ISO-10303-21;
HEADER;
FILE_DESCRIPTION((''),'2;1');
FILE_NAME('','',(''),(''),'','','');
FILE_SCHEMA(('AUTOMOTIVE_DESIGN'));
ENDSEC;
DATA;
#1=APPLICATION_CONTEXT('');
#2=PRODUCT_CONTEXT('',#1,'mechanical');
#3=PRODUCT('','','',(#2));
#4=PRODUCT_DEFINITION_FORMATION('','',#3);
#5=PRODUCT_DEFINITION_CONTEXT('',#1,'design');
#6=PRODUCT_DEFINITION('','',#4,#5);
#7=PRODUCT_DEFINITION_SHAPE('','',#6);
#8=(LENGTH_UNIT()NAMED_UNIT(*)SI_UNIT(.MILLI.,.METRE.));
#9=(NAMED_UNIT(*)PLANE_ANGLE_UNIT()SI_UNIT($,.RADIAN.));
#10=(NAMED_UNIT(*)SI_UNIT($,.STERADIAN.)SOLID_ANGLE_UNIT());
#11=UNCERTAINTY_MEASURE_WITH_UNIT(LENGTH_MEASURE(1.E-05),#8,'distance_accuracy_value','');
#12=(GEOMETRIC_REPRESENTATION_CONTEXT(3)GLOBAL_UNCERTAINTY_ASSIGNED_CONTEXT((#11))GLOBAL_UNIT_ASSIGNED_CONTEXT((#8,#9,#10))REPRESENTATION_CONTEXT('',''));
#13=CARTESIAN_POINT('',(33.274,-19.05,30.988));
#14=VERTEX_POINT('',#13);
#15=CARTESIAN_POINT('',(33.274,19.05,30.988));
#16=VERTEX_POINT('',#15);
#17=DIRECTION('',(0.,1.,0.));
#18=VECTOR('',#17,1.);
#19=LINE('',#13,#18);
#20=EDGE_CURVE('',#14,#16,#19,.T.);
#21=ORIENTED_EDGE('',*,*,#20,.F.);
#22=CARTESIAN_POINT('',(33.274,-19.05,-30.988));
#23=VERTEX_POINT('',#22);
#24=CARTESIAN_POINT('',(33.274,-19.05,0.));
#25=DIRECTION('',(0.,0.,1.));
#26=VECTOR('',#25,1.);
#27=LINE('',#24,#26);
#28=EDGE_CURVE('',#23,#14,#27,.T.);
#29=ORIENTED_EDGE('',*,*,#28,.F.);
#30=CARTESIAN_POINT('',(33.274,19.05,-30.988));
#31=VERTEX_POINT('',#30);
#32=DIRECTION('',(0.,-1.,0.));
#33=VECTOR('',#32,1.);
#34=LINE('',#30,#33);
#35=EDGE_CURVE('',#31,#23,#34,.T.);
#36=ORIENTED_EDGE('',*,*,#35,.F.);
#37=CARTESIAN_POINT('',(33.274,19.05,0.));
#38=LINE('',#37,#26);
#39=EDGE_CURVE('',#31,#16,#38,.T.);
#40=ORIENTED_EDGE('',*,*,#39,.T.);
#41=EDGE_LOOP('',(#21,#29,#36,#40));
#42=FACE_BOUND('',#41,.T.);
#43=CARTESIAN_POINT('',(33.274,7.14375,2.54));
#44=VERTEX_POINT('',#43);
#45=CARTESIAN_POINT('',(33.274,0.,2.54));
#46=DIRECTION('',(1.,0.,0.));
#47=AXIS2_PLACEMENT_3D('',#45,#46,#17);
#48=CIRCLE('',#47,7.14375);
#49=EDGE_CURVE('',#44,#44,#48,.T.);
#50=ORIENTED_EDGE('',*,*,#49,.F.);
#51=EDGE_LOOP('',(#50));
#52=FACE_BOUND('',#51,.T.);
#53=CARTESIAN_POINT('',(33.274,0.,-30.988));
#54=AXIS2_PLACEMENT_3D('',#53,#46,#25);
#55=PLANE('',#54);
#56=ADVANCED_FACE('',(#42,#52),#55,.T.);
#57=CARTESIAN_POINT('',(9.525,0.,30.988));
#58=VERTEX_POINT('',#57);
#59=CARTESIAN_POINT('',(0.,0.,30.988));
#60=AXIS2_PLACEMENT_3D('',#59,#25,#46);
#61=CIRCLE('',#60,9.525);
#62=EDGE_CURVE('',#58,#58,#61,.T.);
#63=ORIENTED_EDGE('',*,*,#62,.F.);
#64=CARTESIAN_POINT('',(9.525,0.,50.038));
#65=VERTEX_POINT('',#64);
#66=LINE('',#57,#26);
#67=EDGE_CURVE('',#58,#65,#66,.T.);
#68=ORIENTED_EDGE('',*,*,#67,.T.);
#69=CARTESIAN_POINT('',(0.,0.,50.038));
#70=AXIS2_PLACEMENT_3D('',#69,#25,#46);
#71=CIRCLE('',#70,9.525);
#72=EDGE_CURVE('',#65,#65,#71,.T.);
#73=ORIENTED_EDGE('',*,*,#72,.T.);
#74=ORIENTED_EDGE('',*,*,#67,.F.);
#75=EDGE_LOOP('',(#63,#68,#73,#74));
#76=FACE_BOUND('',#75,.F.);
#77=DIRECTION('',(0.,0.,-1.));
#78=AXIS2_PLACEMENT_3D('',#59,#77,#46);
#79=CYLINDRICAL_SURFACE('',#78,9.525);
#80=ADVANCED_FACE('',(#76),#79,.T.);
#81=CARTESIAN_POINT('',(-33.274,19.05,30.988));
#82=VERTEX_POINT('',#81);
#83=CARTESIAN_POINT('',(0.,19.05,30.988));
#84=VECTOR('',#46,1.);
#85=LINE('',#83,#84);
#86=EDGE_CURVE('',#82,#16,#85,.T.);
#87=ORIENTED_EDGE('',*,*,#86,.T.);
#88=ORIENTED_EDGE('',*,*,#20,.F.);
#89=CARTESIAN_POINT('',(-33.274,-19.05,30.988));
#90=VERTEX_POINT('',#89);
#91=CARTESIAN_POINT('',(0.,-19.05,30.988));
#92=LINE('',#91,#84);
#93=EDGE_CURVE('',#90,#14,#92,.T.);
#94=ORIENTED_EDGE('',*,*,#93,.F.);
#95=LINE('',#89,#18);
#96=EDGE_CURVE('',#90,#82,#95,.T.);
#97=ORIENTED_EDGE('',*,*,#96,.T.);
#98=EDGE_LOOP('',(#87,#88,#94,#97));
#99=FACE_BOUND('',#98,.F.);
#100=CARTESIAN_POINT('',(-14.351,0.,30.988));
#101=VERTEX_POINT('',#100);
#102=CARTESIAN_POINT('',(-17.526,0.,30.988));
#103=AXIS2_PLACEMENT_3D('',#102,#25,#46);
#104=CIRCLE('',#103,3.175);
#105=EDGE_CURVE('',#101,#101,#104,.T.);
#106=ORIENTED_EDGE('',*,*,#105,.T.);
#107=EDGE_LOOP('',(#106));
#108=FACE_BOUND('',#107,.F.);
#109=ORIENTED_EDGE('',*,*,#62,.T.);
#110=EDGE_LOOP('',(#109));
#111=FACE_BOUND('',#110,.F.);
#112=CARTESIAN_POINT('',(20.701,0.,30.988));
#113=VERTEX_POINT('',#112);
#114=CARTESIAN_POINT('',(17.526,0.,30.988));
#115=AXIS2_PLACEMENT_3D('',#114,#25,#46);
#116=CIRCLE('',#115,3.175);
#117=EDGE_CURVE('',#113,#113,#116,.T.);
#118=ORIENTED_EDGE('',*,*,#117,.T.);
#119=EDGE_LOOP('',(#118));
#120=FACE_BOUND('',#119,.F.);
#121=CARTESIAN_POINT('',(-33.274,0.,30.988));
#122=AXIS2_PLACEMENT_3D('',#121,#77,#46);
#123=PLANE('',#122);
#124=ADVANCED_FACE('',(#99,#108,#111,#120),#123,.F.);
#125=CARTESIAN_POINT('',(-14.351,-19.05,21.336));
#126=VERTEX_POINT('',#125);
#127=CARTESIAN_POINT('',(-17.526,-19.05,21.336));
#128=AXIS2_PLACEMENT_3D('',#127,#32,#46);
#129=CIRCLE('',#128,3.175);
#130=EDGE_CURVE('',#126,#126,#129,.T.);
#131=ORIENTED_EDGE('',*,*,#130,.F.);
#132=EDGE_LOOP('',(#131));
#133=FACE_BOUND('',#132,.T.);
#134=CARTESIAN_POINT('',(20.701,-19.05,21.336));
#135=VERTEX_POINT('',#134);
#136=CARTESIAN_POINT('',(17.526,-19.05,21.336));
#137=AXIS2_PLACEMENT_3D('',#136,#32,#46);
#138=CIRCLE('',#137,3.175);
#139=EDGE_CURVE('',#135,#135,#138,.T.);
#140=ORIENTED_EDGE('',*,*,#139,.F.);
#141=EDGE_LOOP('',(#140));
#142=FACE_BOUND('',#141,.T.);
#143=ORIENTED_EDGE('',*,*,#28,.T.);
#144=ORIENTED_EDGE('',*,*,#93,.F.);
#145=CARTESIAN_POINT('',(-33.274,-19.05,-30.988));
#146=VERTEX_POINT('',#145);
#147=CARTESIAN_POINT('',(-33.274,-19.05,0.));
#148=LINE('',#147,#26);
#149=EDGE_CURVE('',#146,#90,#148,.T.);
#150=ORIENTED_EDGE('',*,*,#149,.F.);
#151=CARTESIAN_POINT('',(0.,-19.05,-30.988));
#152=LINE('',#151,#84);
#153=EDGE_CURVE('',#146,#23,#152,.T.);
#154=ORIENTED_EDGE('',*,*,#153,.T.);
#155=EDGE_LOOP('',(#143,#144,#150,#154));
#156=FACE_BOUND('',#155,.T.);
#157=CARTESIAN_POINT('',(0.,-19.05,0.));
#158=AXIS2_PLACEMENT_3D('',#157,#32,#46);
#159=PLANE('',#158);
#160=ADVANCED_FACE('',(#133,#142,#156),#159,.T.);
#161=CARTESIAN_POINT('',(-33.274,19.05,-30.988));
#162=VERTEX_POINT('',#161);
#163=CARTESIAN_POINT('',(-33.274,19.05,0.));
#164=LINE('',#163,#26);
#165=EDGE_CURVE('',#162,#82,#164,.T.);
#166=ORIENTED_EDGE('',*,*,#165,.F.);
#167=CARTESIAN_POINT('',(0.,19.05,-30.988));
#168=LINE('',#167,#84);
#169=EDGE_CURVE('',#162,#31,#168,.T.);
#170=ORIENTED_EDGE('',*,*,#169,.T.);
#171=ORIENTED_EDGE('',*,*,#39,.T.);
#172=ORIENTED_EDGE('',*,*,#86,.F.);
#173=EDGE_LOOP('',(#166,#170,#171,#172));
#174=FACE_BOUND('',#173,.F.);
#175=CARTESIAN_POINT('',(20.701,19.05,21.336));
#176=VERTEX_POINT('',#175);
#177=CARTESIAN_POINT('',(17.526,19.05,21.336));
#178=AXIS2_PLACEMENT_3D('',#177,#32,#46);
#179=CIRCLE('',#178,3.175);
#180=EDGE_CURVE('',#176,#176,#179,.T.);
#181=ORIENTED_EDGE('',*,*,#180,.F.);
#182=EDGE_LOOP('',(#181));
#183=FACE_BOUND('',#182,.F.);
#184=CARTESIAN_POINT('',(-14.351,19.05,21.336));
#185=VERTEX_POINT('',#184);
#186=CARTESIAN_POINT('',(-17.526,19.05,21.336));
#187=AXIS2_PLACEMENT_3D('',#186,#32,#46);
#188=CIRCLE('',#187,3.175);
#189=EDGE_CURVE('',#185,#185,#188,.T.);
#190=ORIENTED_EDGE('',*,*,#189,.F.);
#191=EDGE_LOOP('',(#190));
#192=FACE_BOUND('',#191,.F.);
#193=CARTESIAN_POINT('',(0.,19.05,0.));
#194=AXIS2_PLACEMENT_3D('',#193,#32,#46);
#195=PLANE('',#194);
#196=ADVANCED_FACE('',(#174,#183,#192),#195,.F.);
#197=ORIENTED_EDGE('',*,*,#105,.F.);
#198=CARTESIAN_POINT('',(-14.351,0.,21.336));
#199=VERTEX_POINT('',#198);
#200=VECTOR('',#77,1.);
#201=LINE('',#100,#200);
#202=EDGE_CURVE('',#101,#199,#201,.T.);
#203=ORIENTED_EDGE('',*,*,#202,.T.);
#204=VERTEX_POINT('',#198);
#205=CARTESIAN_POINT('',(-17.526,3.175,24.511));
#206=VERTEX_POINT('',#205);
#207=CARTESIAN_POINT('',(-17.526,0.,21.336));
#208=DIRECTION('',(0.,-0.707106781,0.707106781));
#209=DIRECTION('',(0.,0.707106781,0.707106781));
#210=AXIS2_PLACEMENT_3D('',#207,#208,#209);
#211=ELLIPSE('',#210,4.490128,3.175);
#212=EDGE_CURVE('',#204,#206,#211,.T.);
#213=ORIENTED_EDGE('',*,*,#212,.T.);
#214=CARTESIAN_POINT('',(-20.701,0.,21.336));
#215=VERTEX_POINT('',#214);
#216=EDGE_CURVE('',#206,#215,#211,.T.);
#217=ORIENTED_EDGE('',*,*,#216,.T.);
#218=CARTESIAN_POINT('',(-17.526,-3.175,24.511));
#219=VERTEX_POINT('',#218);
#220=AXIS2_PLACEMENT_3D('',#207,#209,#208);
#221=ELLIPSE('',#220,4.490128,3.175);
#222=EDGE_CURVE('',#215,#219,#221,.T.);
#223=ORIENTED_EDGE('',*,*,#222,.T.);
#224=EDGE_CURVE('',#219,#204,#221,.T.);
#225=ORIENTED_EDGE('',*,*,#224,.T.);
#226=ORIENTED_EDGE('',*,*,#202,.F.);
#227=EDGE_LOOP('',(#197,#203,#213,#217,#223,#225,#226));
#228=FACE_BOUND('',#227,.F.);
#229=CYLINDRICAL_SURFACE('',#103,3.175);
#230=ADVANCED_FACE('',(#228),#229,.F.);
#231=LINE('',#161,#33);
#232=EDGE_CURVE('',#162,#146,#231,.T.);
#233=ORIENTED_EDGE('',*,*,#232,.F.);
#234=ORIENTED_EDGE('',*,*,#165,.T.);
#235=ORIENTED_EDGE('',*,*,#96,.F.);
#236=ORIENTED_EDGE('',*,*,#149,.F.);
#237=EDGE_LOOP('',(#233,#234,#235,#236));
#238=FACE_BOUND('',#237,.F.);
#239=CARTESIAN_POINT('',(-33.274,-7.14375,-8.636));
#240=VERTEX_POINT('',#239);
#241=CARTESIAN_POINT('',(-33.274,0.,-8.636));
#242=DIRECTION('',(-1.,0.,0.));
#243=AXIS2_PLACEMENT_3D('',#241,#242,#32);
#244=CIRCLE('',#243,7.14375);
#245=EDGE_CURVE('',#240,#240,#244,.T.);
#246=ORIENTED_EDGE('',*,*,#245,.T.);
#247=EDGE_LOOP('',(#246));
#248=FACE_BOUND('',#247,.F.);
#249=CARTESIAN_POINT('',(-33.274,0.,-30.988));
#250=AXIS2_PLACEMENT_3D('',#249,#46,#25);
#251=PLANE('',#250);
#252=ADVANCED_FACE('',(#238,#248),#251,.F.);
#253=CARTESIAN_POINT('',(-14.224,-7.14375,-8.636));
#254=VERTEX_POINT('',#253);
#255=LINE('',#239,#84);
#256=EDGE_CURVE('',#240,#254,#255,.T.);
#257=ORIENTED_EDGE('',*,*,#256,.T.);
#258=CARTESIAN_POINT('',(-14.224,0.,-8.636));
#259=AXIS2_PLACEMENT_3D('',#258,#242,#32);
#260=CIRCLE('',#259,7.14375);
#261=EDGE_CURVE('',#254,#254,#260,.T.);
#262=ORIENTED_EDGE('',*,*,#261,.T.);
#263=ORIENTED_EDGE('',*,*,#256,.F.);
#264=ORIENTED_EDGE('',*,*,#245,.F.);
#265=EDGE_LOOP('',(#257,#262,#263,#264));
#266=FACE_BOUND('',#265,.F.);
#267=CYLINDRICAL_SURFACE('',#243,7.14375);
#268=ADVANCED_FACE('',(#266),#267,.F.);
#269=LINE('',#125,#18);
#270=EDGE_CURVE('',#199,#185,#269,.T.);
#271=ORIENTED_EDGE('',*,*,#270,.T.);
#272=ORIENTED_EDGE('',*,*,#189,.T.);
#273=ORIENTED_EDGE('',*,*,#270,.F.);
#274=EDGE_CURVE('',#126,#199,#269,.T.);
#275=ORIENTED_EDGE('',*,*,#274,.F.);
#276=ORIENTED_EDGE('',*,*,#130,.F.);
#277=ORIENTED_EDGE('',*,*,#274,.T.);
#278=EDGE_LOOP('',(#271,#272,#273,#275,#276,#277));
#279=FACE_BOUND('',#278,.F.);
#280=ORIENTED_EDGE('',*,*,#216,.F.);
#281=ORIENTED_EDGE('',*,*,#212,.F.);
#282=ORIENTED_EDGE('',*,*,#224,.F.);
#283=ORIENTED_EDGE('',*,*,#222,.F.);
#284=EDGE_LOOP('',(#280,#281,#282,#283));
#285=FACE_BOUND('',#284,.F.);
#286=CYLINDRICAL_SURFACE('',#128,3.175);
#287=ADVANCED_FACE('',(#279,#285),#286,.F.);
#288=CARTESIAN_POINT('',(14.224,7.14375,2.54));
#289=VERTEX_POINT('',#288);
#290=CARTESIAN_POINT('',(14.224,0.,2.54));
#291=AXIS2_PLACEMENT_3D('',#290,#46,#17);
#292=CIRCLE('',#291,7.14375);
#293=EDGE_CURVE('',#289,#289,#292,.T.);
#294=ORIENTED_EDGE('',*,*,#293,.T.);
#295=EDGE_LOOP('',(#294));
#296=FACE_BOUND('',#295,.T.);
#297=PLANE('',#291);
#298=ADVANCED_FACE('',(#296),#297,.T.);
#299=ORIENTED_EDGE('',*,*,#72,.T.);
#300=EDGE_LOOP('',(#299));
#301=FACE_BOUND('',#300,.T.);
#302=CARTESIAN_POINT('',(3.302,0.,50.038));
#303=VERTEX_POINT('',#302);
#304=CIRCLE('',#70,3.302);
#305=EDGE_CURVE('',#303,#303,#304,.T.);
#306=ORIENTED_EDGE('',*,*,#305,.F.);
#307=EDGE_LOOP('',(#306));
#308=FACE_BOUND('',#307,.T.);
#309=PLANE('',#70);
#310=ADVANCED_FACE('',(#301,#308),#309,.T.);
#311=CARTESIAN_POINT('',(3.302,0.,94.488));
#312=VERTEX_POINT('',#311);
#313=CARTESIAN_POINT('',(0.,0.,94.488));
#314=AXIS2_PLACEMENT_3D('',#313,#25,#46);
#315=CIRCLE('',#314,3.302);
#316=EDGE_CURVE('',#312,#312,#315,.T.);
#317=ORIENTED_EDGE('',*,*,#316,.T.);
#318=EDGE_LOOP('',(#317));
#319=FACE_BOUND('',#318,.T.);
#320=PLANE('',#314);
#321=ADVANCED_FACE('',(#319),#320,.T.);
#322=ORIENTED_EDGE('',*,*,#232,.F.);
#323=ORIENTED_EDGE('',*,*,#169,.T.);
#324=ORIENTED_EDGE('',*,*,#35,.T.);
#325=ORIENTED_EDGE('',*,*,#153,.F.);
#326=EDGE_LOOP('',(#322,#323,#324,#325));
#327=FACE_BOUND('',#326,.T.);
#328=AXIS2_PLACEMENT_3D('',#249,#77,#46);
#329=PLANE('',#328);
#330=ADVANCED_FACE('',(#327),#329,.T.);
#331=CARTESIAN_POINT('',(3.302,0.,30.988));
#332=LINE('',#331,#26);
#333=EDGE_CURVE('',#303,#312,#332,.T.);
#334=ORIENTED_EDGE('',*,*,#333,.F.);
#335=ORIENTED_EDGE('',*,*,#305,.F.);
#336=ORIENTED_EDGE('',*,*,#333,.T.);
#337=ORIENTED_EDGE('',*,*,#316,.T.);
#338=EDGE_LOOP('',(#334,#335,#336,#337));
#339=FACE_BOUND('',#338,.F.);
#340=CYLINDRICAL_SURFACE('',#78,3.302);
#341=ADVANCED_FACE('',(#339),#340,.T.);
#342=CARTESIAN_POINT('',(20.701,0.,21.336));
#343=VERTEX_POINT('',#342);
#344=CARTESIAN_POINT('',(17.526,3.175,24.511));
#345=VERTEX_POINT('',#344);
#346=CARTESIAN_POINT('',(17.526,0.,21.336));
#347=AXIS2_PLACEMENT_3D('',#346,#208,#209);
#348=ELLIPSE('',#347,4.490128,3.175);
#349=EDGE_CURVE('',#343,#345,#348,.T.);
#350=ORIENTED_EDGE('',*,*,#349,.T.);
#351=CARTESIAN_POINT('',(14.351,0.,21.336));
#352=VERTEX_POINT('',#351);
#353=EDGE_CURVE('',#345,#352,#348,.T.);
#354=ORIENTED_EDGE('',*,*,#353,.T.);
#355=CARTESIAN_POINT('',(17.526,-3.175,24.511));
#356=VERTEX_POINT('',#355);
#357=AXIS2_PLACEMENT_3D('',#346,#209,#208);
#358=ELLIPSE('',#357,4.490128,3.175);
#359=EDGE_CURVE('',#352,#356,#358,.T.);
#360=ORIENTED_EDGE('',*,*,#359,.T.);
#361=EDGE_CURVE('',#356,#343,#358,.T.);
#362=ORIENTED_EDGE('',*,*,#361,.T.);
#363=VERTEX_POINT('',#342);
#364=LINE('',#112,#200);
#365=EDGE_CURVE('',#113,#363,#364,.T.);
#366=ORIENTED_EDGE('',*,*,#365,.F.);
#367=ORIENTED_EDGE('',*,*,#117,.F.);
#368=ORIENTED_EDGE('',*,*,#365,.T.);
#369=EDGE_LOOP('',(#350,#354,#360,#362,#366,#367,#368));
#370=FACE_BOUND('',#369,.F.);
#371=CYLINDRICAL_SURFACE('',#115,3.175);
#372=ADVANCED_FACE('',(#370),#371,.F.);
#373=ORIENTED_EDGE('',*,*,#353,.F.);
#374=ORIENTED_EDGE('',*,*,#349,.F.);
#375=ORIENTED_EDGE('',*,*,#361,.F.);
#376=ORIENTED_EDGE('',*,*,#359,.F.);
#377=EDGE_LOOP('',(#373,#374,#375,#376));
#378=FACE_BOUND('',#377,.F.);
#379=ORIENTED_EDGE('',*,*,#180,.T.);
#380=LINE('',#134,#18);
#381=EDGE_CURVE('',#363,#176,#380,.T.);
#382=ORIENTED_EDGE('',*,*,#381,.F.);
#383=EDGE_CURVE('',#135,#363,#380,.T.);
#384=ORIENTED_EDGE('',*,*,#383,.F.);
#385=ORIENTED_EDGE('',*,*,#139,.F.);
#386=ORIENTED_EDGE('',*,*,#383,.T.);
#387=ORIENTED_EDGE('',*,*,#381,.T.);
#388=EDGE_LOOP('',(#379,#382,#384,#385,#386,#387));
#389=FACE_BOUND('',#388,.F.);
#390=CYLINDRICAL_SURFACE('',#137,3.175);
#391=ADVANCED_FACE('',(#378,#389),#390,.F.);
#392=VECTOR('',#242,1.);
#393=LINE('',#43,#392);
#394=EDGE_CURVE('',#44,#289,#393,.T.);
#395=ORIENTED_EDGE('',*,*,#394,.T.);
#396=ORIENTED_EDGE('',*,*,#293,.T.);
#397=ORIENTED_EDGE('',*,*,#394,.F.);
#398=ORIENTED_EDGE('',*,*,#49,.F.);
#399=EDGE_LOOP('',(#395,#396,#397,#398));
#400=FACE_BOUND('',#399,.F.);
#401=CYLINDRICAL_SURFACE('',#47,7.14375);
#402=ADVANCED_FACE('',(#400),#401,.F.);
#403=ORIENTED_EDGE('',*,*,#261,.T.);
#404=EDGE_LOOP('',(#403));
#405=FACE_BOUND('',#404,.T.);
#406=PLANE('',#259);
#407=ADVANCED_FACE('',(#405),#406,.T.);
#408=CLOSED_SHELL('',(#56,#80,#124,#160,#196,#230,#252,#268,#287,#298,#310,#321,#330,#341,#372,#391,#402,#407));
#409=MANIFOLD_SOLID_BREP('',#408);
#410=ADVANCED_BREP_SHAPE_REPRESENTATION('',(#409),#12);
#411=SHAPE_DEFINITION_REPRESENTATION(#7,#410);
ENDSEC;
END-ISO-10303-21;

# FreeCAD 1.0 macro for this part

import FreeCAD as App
import Part
import Sketcher
Q = App.Units.Quantity

doc = App.newDocument("Part")
body = doc.addObject("PartDesign::Body", "Body")

# Sketch on XZ plane
sketch1 = body.newObject("Sketcher::SketchObject", "Sketch")
sketch1.AttachmentSupport = (doc.getObject("XZ_Plane"), [""])
sketch1.MapMode = "FlatFace"
sketch1.addGeometry(Part.LineSegment(App.Vector(-33, 31, 0), App.Vector(-33, -31, 0)), False)
sketch1.addGeometry(Part.LineSegment(App.Vector(-33, -31, 0), App.Vector(33, -31, 0)), False)
sketch1.addGeometry(Part.LineSegment(App.Vector(33, -31, 0), App.Vector(33, 31, 0)), False)
sketch1.addGeometry(Part.LineSegment(App.Vector(33, 31, 0), App.Vector(-33, 31, 0)), False)
sketch1.addConstraint(Sketcher.Constraint("Coincident", 0, 2, 1, 1))
sketch1.addConstraint(Sketcher.Constraint("Coincident", 1, 2, 2, 1))
sketch1.addConstraint(Sketcher.Constraint("Coincident", 2, 2, 3, 1))
sketch1.addConstraint(Sketcher.Constraint("Coincident", 3, 2, 0, 1))
sketch1.addConstraint(Sketcher.Constraint("Vertical", 0))
sketch1.addConstraint(Sketcher.Constraint("Horizontal", 1))
sketch1.addConstraint(Sketcher.Constraint("Vertical", 2))
sketch1.addConstraint(Sketcher.Constraint("Horizontal", 3))
sketch1.addConstraint(Sketcher.Constraint("Symmetric", 0, 2, 2, 2, -1, 1))
sketch1.addConstraint(Sketcher.Constraint("DistanceX", 1, 1, 1, 2, Q("2.62 in")))
sketch1.addConstraint(Sketcher.Constraint("DistanceY", 0, 2, 0, 1, Q("2.44 in")))
pad1 = body.newObject("PartDesign::Pad", "Pad")
pad1.Profile = sketch1
pad1.Length = Q("1.5 in")
pad1.Midplane = True

# Sketch on XY plane
sketch2 = body.newObject("Sketcher::SketchObject", "Sketch001")
sketch2.AttachmentSupport = (doc.getObject("XY_Plane"), [""])
sketch2.MapMode = "FlatFace"
sketch2.AttachmentOffset = App.Placement(App.Vector(0, 0, 1.22 * 25.4), App.Rotation())
sketch2.addGeometry(Part.Circle(App.Vector(0, 0, 0), App.Vector(0, 0, 1), 9.5), False)
sketch2.addGeometry(Part.Circle(App.Vector(0, 0, 0), App.Vector(0, 0, 1), 3.3), False)
sketch2.addConstraint(Sketcher.Constraint("Coincident", 0, 3, -1, 1))
sketch2.addConstraint(Sketcher.Constraint("Coincident", 1, 3, -1, 1))
sketch2.addConstraint(Sketcher.Constraint("Diameter", 0, Q("0.75 in")))
sketch2.addConstraint(Sketcher.Constraint("Diameter", 1, Q("0.26 in")))
pad2 = body.newObject("PartDesign::Pad", "Pad001")
pad2.Profile = sketch2
pad2.Length = Q("0.75 in")

# Sketch on XY plane
sketch3 = body.newObject("Sketcher::SketchObject", "Sketch002")
sketch3.AttachmentSupport = (doc.getObject("XY_Plane"), [""])
sketch3.MapMode = "FlatFace"
sketch3.AttachmentOffset = App.Placement(App.Vector(0, 0, 1.22 * 25.4), App.Rotation())
sketch3.addGeometry(Part.Circle(App.Vector(0, 0, 0), App.Vector(0, 0, 1), 3.3), False)
sketch3.addConstraint(Sketcher.Constraint("Coincident", 0, 3, -1, 1))
sketch3.addConstraint(Sketcher.Constraint("Diameter", 0, Q("0.26 in")))
pad3 = body.newObject("PartDesign::Pad", "Pad002")
pad3.Profile = sketch3
pad3.Length = Q("2.5 in")

# Sketch on XY plane
sketch4 = body.newObject("Sketcher::SketchObject", "Sketch003")
sketch4.AttachmentSupport = (doc.getObject("XY_Plane"), [""])
sketch4.MapMode = "FlatFace"
sketch4.AttachmentOffset = App.Placement(App.Vector(0, 0, 1.22 * 25.4), App.Rotation())
sketch4.addGeometry(Part.Circle(App.Vector(-17.5, 0, 0), App.Vector(0, 0, 1), 3.2), False)
sketch4.addGeometry(Part.Circle(App.Vector(17.5, 0, 0), App.Vector(0, 0, 1), 3.2), False)
sketch4.addConstraint(Sketcher.Constraint("Equal", 0, 1))
sketch4.addConstraint(Sketcher.Constraint("Symmetric", 0, 3, 1, 3, -1, 1))
sketch4.addConstraint(Sketcher.Constraint("PointOnObject", 0, 3, -1))
sketch4.addConstraint(Sketcher.Constraint("Diameter", 0, Q("0.25 in")))
sketch4.addConstraint(Sketcher.Constraint("DistanceX", 0, 3, -1, 1, Q("0.69 in")))
pocket1 = body.newObject("PartDesign::Pocket", "Pocket")
pocket1.Profile = sketch4
pocket1.Length = Q("0.38 in")

# Sketch on XZ plane
sketch5 = body.newObject("Sketcher::SketchObject", "Sketch004")
sketch5.AttachmentSupport = (doc.getObject("XZ_Plane"), [""])
sketch5.MapMode = "FlatFace"
sketch5.AttachmentOffset = App.Placement(App.Vector(0, 0, 0.75 * 25.4), App.Rotation())
sketch5.addGeometry(Part.Circle(App.Vector(-17.5, 21.3, 0), App.Vector(0, 0, 1), 3.2), False)
sketch5.addGeometry(Part.Circle(App.Vector(17.5, 21.3, 0), App.Vector(0, 0, 1), 3.2), False)
sketch5.addConstraint(Sketcher.Constraint("Equal", 0, 1))
sketch5.addConstraint(Sketcher.Constraint("Symmetric", 0, 3, 1, 3, -2))
sketch5.addConstraint(Sketcher.Constraint("Diameter", 0, Q("0.25 in")))
sketch5.addConstraint(Sketcher.Constraint("DistanceX", 0, 3, -1, 1, Q("0.69 in")))
sketch5.addConstraint(Sketcher.Constraint("DistanceY", -1, 1, 0, 3, Q("0.84 in")))
pocket2 = body.newObject("PartDesign::Pocket", "Pocket001")
pocket2.Profile = sketch5
pocket2.Type = "ThroughAll"

# Sketch on YZ plane
sketch6 = body.newObject("Sketcher::SketchObject", "Sketch005")
sketch6.AttachmentSupport = (doc.getObject("YZ_Plane"), [""])
sketch6.MapMode = "FlatFace"
sketch6.AttachmentOffset = App.Placement(App.Vector(0, 0, 1.31 * 25.4), App.Rotation())
sketch6.addGeometry(Part.Circle(App.Vector(0, 3, 0), App.Vector(0, 0, 1), 7), False)
sketch6.addConstraint(Sketcher.Constraint("PointOnObject", 0, 3, -2))
sketch6.addConstraint(Sketcher.Constraint("Diameter", 0, Q("0.5625 in")))
sketch6.addConstraint(Sketcher.Constraint("DistanceY", -1, 1, 0, 3, Q("0.1 in")))
pocket3 = body.newObject("PartDesign::Pocket", "Pocket002")
pocket3.Profile = sketch6
pocket3.Length = Q("0.75 in")

# Sketch on YZ plane
sketch7 = body.newObject("Sketcher::SketchObject", "Sketch006")
sketch7.AttachmentSupport = (doc.getObject("YZ_Plane"), [""])
sketch7.MapMode = "FlatFace"
sketch7.AttachmentOffset = App.Placement(App.Vector(0, 0, -1.31 * 25.4), App.Rotation())
sketch7.addGeometry(Part.Circle(App.Vector(0, -9, 0), App.Vector(0, 0, 1), 7), False)
sketch7.addConstraint(Sketcher.Constraint("PointOnObject", 0, 3, -2))
sketch7.addConstraint(Sketcher.Constraint("Diameter", 0, Q("0.5625 in")))
sketch7.addConstraint(Sketcher.Constraint("DistanceY", 0, 3, -1, 1, Q("0.34 in")))
pocket4 = body.newObject("PartDesign::Pocket", "Pocket003")
pocket4.Profile = sketch7
pocket4.Length = Q("0.75 in")
pocket4.Reversed = True

doc.recompute()
